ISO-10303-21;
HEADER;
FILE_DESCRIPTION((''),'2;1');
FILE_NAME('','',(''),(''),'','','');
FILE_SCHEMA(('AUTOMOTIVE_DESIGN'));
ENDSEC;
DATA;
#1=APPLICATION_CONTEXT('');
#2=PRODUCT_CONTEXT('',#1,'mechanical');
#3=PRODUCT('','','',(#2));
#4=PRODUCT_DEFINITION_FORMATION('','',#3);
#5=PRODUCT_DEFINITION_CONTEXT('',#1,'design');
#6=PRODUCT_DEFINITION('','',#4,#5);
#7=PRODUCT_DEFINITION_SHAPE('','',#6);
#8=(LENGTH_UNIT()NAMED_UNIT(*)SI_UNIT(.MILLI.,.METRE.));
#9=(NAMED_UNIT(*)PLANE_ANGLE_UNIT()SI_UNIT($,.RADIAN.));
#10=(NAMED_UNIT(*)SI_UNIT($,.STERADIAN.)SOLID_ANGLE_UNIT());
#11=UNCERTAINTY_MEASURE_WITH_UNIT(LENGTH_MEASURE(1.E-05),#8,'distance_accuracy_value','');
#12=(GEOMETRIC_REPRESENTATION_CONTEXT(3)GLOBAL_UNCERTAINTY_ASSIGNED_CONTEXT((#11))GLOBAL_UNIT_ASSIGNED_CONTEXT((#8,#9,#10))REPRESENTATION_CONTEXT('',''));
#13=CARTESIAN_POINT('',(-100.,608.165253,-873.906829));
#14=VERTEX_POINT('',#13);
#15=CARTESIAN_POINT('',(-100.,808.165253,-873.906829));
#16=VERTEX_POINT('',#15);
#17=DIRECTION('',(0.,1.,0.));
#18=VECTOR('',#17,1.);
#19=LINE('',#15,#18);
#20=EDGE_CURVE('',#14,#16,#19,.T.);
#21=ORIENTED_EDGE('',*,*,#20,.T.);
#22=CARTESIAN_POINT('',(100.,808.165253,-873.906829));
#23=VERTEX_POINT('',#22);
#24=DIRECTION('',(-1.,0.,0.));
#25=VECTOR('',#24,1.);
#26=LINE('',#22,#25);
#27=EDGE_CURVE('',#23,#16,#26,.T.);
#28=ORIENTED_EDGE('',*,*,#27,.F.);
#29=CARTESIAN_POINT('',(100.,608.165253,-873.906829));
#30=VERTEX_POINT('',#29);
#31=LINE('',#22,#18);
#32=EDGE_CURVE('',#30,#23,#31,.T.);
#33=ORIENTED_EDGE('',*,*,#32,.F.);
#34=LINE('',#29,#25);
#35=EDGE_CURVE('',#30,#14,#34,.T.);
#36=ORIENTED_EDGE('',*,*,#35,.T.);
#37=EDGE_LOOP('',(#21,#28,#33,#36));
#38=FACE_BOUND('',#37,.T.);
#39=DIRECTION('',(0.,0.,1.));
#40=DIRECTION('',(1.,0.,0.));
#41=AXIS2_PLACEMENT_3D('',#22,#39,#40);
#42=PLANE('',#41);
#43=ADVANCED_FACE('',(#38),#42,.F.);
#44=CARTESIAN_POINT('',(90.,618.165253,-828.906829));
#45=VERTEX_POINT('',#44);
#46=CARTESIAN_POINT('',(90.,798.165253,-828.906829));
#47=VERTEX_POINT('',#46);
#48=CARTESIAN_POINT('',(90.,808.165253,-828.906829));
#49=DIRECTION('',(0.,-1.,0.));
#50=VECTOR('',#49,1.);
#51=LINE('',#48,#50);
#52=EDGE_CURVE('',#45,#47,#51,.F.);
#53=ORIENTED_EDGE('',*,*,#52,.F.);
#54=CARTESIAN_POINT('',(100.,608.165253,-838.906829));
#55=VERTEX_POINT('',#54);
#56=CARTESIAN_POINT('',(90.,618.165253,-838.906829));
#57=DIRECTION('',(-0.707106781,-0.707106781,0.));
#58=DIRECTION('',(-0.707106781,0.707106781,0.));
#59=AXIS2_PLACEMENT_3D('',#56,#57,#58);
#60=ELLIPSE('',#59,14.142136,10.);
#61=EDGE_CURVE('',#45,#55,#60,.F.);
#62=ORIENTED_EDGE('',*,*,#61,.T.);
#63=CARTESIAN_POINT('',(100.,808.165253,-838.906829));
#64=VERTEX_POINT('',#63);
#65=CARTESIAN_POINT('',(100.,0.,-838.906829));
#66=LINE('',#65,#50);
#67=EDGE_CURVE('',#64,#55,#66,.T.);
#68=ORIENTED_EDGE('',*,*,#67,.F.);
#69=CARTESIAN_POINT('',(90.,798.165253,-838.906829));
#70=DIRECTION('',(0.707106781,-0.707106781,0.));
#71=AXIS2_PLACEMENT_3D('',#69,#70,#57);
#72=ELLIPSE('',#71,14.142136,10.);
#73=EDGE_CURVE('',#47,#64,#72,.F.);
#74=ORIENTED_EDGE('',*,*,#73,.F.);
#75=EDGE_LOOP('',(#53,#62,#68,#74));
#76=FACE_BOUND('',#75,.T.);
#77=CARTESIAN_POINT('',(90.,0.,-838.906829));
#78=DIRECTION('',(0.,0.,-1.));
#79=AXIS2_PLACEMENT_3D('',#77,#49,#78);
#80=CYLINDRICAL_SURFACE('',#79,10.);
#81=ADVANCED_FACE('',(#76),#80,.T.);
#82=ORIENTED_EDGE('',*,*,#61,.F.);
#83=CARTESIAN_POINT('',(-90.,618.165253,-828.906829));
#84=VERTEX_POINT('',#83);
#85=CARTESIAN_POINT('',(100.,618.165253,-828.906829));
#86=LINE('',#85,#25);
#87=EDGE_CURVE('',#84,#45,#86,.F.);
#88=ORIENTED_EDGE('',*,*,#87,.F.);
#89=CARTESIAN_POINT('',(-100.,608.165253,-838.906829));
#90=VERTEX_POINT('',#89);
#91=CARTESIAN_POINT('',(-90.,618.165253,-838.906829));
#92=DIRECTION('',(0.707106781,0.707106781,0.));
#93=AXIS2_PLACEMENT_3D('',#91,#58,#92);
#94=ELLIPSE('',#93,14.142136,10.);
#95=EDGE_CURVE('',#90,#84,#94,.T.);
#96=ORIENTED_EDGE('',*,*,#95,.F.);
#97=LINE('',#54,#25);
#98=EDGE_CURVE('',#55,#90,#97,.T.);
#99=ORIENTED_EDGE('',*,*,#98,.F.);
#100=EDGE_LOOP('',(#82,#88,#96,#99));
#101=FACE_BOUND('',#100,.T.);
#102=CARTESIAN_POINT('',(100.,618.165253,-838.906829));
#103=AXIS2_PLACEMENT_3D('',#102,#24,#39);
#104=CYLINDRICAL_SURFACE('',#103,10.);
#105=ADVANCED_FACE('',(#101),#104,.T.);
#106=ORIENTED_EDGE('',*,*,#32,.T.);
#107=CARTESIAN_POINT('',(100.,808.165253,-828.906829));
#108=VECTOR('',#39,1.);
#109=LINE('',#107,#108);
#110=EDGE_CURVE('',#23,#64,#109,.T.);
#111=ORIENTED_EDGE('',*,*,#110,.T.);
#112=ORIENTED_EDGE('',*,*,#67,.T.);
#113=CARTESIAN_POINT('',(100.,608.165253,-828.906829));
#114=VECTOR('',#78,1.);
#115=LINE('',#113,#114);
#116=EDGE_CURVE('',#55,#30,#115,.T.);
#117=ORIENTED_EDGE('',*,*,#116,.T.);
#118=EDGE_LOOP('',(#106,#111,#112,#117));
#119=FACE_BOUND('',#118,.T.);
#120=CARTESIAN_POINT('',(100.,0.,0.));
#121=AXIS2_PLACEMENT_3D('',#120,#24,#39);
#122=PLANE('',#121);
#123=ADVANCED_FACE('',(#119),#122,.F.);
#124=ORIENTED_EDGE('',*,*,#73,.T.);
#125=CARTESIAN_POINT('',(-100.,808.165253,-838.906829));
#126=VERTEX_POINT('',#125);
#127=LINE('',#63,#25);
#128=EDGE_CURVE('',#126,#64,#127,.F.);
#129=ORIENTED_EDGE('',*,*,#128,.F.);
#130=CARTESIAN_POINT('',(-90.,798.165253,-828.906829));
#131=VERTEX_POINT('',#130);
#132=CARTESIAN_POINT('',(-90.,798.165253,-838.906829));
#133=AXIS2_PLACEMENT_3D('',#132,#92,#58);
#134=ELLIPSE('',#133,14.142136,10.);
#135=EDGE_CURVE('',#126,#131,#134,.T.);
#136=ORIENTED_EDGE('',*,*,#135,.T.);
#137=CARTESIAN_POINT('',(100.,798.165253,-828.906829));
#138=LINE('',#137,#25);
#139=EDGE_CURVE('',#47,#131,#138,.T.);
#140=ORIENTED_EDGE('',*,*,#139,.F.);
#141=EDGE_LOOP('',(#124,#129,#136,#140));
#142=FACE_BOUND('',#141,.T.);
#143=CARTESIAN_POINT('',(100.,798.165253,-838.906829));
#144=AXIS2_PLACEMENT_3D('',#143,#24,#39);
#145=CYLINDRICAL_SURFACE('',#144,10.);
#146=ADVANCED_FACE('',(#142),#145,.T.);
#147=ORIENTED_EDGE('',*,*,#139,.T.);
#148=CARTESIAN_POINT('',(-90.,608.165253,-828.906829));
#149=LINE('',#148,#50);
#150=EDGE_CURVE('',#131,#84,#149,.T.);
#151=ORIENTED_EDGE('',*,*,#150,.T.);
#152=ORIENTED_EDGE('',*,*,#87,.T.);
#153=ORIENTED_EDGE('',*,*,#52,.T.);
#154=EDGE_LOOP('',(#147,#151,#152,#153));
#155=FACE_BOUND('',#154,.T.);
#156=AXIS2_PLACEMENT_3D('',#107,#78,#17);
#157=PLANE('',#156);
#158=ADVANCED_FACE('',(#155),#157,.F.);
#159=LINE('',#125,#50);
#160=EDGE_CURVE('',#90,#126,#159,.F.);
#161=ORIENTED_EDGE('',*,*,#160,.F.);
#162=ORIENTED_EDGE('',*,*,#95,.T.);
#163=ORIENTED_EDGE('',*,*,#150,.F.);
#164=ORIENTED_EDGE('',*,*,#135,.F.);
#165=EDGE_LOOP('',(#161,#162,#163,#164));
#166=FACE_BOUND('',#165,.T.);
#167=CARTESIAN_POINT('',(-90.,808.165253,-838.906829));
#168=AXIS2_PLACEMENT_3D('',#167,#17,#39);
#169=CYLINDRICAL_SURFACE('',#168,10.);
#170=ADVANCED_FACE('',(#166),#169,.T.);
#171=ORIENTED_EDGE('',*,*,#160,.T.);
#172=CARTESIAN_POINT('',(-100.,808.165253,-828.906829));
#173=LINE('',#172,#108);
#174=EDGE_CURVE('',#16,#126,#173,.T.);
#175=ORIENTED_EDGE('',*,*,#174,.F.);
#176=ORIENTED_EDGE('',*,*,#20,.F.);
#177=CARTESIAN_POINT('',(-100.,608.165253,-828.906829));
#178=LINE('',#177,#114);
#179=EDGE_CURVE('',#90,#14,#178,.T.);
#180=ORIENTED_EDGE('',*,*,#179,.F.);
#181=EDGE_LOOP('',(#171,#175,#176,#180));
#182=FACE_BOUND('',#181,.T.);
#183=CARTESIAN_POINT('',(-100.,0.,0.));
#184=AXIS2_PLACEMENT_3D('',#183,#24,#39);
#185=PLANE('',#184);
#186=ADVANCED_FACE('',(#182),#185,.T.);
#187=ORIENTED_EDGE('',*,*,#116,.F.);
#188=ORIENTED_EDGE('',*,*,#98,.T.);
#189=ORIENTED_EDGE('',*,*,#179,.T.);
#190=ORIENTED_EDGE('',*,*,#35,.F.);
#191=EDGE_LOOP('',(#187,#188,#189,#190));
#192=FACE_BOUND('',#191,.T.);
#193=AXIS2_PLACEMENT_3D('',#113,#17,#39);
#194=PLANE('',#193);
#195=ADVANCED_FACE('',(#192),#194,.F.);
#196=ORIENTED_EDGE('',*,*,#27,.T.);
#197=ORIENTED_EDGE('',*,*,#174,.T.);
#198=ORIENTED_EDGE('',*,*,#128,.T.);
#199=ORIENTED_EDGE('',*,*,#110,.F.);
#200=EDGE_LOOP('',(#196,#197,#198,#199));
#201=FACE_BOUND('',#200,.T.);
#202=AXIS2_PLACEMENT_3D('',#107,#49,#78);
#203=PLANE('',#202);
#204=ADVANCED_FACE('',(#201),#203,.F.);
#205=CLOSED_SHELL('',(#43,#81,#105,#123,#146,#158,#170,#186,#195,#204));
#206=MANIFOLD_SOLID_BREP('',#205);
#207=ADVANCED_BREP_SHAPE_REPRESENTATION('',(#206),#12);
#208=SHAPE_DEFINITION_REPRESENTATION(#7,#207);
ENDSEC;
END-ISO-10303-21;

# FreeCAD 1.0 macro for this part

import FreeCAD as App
import Part
import Sketcher
from FreeCAD import Vector


def edges_at(feature, points):
    """Names of the edges that pass closest to the given points."""
    edges = feature.Shape.Edges
    near = lambda p: min(range(len(edges)), key=lambda i: edges[i].distToShape(Part.Vertex(*p))[0])
    return sorted({f"Edge{near(p) + 1}" for p in points})


def add_polygon(sketch, points):
    """Adds a closed chain of lines whose ends are joined by coincident constraints."""
    first, n = sketch.GeometryCount, len(points)
    for a, b in zip(points, points[1:] + points[:1]):
        sketch.addGeometry(Part.LineSegment(App.Vector(*a, 0), App.Vector(*b, 0)), False)
    for i in range(n):
        sketch.addConstraint(Sketcher.Constraint("Coincident", first + i, 2, first + (i + 1) % n, 1))

doc = App.newDocument("Part")
body = doc.addObject("PartDesign::Body", "Body")

# Sketch on YZ plane
sketch1 = body.newObject("Sketcher::SketchObject", "Sketch")
sketch1.AttachmentSupport = (doc.getObject("YZ_Plane"), [""])
sketch1.MapMode = "FlatFace"
add_polygon(sketch1, [(808.165253, -828.906829), (608.165253, -828.906829), (608.165253, -873.906829), (808.165253, -873.906829)])  # lines 0-3
sketch1.addConstraint([
    Sketcher.Constraint("Horizontal", 0),
    Sketcher.Constraint("Vertical", 1),
    Sketcher.Constraint("Horizontal", 2),
    Sketcher.Constraint("Vertical", 3),
    Sketcher.Constraint("DistanceX", 0, 2, 0, 1, 200.0),
    Sketcher.Constraint("DistanceY", 1, 2, 1, 1, 45.0),
    Sketcher.Constraint("DistanceY", 0, 2, -1, 1, 828.906829),
    Sketcher.Constraint("DistanceX", -1, 1, 0, 2, 608.165253),
])
pad1 = body.newObject("PartDesign::Pad", "Pad")
pad1.Profile = sketch1
pad1.Length = 200
pad1.Midplane = True
doc.recompute()

fillet = body.newObject("PartDesign::Fillet", "Fillet")
fillet.Base = (pad1, edges_at(pad1, [
    (-100, 708.165, -828.907),
    (0, 608.165, -828.907),
    (0, 808.165, -828.907),
    (100, 708.165, -828.907),
]))
fillet.Radius = 10

doc.recompute()
